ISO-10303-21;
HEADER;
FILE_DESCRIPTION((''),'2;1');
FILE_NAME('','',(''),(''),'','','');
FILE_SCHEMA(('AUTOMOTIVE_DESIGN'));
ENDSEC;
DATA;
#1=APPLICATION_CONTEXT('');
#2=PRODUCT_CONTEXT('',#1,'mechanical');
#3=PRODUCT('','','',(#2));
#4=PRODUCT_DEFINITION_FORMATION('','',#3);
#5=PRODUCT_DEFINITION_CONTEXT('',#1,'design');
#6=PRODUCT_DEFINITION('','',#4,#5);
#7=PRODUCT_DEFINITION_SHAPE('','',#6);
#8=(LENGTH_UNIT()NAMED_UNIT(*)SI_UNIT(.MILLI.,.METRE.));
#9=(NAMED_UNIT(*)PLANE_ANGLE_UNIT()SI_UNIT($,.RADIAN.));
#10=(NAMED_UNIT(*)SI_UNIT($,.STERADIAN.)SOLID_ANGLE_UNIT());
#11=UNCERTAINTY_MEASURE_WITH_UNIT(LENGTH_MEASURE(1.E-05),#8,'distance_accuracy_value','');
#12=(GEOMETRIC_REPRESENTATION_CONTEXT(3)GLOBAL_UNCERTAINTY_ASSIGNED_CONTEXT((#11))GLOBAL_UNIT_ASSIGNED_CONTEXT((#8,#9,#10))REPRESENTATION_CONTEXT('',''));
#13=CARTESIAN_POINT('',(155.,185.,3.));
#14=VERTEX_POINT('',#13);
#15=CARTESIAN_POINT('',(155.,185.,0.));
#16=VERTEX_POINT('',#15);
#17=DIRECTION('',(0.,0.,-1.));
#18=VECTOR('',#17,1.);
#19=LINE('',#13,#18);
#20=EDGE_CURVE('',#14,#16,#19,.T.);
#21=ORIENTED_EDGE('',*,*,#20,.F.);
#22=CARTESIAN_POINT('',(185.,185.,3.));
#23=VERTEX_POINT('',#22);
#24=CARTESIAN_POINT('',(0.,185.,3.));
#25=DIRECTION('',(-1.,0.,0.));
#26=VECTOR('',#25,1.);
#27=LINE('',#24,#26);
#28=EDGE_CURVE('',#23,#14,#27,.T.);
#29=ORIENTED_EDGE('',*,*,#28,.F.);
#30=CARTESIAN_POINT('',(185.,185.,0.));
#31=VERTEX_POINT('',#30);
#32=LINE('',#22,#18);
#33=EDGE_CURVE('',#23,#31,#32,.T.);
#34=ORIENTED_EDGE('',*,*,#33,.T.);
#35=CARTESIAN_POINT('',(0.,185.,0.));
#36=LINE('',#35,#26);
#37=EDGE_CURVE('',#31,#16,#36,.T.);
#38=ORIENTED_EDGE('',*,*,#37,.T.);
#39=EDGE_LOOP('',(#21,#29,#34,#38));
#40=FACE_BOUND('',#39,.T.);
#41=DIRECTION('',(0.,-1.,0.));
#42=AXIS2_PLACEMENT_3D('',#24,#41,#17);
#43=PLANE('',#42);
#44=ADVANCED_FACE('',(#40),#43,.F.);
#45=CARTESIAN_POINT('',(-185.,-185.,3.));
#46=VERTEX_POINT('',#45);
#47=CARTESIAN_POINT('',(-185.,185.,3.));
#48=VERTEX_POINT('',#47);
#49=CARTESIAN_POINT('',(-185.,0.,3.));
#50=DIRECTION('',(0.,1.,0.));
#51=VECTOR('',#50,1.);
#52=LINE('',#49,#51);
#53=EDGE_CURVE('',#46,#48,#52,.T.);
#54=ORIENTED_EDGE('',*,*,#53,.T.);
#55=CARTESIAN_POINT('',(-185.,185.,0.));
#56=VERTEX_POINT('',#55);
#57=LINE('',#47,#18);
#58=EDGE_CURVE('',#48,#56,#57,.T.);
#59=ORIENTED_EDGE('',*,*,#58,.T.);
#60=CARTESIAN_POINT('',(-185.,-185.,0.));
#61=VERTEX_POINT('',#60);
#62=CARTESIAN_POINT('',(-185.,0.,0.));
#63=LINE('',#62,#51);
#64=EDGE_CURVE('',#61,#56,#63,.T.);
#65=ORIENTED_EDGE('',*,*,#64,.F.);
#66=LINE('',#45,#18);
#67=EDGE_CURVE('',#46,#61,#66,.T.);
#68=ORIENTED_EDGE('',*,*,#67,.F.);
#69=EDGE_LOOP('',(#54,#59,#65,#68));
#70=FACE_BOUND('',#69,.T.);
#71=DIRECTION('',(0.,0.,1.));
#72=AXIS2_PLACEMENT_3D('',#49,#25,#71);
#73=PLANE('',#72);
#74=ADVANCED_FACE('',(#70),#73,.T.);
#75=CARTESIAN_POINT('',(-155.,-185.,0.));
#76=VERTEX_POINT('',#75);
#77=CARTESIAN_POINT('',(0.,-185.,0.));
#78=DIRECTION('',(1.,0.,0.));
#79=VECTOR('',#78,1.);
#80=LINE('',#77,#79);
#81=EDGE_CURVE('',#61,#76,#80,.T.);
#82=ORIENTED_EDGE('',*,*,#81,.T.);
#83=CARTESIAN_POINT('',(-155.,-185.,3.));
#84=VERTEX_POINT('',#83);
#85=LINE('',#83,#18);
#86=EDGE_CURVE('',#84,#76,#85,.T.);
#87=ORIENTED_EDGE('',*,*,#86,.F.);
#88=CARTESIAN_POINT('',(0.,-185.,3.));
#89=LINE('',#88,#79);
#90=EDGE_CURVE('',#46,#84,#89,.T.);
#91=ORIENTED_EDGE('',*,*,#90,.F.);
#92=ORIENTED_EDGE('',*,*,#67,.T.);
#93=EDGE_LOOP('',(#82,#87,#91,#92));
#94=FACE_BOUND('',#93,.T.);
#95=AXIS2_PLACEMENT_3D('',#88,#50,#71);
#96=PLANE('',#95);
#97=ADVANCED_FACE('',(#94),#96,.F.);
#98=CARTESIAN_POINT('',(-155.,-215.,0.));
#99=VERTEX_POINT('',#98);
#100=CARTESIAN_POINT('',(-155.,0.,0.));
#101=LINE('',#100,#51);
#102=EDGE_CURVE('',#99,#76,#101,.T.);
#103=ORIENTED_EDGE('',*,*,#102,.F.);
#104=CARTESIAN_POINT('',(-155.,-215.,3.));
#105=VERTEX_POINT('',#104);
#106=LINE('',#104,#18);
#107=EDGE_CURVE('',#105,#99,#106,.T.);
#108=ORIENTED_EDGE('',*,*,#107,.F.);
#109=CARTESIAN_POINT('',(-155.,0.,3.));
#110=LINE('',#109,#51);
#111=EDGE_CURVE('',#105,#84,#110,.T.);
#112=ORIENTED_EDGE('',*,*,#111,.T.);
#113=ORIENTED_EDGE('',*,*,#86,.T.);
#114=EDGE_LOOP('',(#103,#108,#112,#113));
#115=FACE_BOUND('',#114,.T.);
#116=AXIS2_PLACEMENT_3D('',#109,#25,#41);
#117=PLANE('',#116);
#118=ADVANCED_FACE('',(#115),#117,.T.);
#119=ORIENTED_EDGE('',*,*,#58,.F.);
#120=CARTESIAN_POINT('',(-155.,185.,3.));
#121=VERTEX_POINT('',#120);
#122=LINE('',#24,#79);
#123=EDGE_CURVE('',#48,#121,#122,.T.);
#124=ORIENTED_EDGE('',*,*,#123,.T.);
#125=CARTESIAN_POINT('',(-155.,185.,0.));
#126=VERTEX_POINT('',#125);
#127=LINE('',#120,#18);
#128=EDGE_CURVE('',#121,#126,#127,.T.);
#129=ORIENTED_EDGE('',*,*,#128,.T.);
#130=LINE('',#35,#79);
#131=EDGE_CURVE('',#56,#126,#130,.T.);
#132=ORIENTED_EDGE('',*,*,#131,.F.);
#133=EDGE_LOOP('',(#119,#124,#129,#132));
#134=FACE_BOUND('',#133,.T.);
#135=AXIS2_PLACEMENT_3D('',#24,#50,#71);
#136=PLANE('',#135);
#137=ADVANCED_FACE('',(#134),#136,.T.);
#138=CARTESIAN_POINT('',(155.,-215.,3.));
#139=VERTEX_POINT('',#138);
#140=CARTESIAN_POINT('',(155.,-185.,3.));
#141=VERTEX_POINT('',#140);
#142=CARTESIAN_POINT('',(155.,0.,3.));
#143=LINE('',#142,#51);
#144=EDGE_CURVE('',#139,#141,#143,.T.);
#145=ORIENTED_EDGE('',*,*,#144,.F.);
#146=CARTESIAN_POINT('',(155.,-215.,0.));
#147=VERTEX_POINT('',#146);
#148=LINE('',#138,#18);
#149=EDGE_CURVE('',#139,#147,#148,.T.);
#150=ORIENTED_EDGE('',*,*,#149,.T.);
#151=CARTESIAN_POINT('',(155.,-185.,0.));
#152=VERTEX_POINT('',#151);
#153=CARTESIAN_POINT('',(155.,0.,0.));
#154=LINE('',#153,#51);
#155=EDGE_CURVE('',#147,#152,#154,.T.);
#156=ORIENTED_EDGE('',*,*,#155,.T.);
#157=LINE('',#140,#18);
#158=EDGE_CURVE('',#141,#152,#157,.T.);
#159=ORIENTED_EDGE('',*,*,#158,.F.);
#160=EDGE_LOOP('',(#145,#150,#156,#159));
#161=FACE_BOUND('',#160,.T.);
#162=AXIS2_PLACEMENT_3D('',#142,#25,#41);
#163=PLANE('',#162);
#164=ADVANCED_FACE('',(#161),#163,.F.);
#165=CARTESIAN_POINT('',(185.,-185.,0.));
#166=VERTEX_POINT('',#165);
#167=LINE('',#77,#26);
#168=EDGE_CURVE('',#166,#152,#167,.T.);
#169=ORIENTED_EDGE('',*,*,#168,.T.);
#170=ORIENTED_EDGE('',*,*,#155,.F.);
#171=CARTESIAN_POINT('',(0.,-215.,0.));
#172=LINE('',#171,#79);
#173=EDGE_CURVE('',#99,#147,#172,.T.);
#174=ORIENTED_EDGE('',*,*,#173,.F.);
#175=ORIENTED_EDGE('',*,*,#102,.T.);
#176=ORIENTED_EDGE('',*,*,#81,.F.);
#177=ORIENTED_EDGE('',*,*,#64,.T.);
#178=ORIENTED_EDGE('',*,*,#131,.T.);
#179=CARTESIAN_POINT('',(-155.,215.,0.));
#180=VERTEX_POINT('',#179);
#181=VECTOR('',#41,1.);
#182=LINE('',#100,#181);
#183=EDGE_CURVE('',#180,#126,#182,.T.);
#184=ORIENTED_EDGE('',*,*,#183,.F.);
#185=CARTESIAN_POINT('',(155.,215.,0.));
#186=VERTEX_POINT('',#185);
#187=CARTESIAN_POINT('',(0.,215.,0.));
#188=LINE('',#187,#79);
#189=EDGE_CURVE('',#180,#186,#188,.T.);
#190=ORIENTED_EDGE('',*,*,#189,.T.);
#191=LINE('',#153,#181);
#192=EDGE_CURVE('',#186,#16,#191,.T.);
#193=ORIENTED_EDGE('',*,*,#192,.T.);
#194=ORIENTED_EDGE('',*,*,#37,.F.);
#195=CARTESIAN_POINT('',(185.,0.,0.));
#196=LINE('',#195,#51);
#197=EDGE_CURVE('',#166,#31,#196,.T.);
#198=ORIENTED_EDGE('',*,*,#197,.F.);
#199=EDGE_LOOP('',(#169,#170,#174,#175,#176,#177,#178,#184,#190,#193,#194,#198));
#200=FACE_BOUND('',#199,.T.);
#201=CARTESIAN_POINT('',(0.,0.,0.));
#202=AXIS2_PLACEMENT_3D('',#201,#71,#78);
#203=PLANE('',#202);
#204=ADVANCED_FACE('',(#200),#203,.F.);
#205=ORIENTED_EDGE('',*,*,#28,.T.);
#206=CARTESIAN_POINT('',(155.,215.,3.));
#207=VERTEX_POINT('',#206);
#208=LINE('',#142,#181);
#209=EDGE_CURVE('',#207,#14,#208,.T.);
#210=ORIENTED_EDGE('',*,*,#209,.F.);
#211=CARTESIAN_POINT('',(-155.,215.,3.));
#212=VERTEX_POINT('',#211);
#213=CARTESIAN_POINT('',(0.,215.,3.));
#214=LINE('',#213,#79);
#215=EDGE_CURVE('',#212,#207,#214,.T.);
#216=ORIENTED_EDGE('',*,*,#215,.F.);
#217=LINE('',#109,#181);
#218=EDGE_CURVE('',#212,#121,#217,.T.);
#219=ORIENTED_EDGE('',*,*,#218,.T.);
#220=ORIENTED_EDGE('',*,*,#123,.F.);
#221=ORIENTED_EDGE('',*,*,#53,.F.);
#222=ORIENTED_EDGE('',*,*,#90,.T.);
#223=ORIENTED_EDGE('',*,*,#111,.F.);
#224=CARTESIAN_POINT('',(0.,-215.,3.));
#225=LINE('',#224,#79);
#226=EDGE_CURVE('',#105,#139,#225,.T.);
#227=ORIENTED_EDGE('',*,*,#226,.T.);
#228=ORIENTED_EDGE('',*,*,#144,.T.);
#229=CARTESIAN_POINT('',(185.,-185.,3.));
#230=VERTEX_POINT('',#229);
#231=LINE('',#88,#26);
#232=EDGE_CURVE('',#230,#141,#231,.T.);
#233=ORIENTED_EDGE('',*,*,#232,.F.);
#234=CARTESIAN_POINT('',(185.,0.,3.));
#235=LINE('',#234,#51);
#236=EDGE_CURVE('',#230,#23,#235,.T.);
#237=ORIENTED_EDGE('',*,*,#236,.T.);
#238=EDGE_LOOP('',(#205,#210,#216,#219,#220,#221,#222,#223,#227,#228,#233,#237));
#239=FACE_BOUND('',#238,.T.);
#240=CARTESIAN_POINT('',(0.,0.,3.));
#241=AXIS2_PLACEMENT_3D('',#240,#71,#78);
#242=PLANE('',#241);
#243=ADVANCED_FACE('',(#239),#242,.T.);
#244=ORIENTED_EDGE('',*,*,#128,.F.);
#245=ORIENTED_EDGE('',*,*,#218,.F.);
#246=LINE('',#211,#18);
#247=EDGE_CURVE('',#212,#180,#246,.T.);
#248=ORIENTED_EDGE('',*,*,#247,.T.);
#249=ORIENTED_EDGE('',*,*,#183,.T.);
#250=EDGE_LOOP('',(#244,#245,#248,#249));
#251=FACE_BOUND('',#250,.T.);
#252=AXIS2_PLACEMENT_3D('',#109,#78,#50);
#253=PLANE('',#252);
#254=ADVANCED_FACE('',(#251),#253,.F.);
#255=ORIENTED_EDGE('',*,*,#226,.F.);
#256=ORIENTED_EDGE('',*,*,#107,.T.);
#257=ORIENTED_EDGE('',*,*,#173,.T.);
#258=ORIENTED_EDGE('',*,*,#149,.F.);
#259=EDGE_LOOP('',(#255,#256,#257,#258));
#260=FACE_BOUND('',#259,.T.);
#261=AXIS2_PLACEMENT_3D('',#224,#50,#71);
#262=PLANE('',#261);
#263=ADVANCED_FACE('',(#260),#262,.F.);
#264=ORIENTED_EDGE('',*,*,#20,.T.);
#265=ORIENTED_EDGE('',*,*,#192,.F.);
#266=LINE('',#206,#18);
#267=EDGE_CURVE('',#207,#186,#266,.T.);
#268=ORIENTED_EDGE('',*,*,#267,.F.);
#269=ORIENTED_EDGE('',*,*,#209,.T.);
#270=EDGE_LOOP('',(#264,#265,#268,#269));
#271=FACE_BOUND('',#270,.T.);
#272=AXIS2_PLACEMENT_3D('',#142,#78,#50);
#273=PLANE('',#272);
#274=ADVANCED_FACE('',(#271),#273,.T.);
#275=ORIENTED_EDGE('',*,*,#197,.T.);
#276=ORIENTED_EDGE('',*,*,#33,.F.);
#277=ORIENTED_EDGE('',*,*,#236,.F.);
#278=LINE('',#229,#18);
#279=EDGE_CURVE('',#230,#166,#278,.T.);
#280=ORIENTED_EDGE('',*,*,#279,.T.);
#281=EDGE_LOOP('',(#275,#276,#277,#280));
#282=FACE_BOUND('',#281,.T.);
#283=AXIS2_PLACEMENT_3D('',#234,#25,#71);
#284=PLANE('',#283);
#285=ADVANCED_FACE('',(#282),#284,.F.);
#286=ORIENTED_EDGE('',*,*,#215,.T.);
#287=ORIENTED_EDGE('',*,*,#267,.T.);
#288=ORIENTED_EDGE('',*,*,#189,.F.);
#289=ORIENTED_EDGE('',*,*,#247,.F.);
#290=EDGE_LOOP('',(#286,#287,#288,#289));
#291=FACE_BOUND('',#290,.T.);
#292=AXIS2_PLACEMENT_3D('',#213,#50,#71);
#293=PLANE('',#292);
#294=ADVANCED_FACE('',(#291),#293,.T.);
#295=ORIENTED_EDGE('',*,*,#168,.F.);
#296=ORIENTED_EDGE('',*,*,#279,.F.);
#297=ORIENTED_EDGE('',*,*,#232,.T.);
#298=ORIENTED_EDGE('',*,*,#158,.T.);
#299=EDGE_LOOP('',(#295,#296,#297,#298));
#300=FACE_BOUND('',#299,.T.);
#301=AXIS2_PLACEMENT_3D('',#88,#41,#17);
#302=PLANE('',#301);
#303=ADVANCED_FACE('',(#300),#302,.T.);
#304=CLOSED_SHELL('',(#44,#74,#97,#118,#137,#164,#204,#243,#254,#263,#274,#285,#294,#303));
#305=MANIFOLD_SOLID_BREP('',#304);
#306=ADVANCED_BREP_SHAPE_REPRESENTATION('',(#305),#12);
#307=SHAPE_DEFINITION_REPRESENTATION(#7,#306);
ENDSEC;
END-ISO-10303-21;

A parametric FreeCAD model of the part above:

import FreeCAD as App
import Part
import Sketcher
Q = App.Units.Quantity

doc = App.newDocument("Part")
params = doc.addObject("Spreadsheet::Sheet", "Params")
for row, (alias, value) in enumerate([
    ("sketch1_width", "310 mm"),
    ("sketch1_width2", "30 mm"),
    ("sketch1_height", "370 mm"),
    ("pad1_length", "3 mm"),
], start=1):
    params.set(f"A{row}", alias)
    params.set(f"B{row}", "=" + value)
    params.setAlias(f"B{row}", alias)

body = doc.addObject("PartDesign::Body", "Body")

sketch1 = doc.addObject("Sketcher::SketchObject", "Sketch")
body.addObject(sketch1)
sketch1.AttachmentSupport = (doc.XY_Plane, [""])
sketch1.MapMode = "FlatFace"
sketch1.addGeometry([
    Part.LineSegment(App.Vector(-155, -185, 0), App.Vector(-155, -215, 0)),
    Part.LineSegment(App.Vector(-155, -215, 0), App.Vector(155, -215, 0)),
    Part.LineSegment(App.Vector(155, -215, 0), App.Vector(155, -185, 0)),
    Part.LineSegment(App.Vector(155, -185, 0), App.Vector(185, -185, 0)),
    Part.LineSegment(App.Vector(185, -185, 0), App.Vector(185, 185, 0)),
    Part.LineSegment(App.Vector(185, 185, 0), App.Vector(155, 185, 0)),
    Part.LineSegment(App.Vector(155, 185, 0), App.Vector(155, 215, 0)),
    Part.LineSegment(App.Vector(155, 215, 0), App.Vector(-155, 215, 0)),
    Part.LineSegment(App.Vector(-155, 215, 0), App.Vector(-155, 185, 0)),
    Part.LineSegment(App.Vector(-155, 185, 0), App.Vector(-185, 185, 0)),
    Part.LineSegment(App.Vector(-185, 185, 0), App.Vector(-185, -185, 0)),
    Part.LineSegment(App.Vector(-185, -185, 0), App.Vector(-155, -185, 0)),
], False)
sketch1.addConstraint([
    Sketcher.Constraint("Coincident", 0, 2, 1, 1),
    Sketcher.Constraint("Coincident", 1, 2, 2, 1),
    Sketcher.Constraint("Coincident", 2, 2, 3, 1),
    Sketcher.Constraint("Coincident", 3, 2, 4, 1),
    Sketcher.Constraint("Coincident", 4, 2, 5, 1),
    Sketcher.Constraint("Coincident", 5, 2, 6, 1),
    Sketcher.Constraint("Coincident", 6, 2, 7, 1),
    Sketcher.Constraint("Coincident", 7, 2, 8, 1),
    Sketcher.Constraint("Coincident", 8, 2, 9, 1),
    Sketcher.Constraint("Coincident", 9, 2, 10, 1),
    Sketcher.Constraint("Coincident", 10, 2, 11, 1),
    Sketcher.Constraint("Coincident", 11, 2, 0, 1),
    Sketcher.Constraint("Vertical", 0),
    Sketcher.Constraint("Horizontal", 1),
    Sketcher.Constraint("Vertical", 2),
    Sketcher.Constraint("Horizontal", 3),
    Sketcher.Constraint("Vertical", 4),
    Sketcher.Constraint("Horizontal", 5),
    Sketcher.Constraint("Vertical", 6),
    Sketcher.Constraint("Horizontal", 7),
    Sketcher.Constraint("Vertical", 8),
    Sketcher.Constraint("Horizontal", 9),
    Sketcher.Constraint("Vertical", 10),
    Sketcher.Constraint("Horizontal", 11),
    Sketcher.Constraint("Symmetric", 0, 2, 6, 2, -1, 1),
    Sketcher.Constraint("Symmetric", 2, 2, 8, 2, -1, 1),
    Sketcher.Constraint("Symmetric", 4, 2, 10, 2, -1, 1),
    Sketcher.Constraint("Symmetric", 5, 2, 8, 2, -2),
    Sketcher.Constraint("Equal", 11, 0),
    Sketcher.Constraint("DistanceX", 1, 1, 1, 2, Q("310 mm")),
    Sketcher.Constraint("DistanceX", 3, 1, 3, 2, Q("30 mm")),
    Sketcher.Constraint("DistanceY", 4, 1, 4, 2, Q("370 mm")),
])
sketch1.setExpression("Constraints[29]", "Params.sketch1_width")
sketch1.setExpression("Constraints[30]", "Params.sketch1_width2")
sketch1.setExpression("Constraints[31]", "Params.sketch1_height")
pad1 = doc.addObject("PartDesign::Pad", "Pad")
body.addObject(pad1)
pad1.Profile = sketch1
pad1.setExpression("Length", "Params.pad1_length")

doc.recompute()
